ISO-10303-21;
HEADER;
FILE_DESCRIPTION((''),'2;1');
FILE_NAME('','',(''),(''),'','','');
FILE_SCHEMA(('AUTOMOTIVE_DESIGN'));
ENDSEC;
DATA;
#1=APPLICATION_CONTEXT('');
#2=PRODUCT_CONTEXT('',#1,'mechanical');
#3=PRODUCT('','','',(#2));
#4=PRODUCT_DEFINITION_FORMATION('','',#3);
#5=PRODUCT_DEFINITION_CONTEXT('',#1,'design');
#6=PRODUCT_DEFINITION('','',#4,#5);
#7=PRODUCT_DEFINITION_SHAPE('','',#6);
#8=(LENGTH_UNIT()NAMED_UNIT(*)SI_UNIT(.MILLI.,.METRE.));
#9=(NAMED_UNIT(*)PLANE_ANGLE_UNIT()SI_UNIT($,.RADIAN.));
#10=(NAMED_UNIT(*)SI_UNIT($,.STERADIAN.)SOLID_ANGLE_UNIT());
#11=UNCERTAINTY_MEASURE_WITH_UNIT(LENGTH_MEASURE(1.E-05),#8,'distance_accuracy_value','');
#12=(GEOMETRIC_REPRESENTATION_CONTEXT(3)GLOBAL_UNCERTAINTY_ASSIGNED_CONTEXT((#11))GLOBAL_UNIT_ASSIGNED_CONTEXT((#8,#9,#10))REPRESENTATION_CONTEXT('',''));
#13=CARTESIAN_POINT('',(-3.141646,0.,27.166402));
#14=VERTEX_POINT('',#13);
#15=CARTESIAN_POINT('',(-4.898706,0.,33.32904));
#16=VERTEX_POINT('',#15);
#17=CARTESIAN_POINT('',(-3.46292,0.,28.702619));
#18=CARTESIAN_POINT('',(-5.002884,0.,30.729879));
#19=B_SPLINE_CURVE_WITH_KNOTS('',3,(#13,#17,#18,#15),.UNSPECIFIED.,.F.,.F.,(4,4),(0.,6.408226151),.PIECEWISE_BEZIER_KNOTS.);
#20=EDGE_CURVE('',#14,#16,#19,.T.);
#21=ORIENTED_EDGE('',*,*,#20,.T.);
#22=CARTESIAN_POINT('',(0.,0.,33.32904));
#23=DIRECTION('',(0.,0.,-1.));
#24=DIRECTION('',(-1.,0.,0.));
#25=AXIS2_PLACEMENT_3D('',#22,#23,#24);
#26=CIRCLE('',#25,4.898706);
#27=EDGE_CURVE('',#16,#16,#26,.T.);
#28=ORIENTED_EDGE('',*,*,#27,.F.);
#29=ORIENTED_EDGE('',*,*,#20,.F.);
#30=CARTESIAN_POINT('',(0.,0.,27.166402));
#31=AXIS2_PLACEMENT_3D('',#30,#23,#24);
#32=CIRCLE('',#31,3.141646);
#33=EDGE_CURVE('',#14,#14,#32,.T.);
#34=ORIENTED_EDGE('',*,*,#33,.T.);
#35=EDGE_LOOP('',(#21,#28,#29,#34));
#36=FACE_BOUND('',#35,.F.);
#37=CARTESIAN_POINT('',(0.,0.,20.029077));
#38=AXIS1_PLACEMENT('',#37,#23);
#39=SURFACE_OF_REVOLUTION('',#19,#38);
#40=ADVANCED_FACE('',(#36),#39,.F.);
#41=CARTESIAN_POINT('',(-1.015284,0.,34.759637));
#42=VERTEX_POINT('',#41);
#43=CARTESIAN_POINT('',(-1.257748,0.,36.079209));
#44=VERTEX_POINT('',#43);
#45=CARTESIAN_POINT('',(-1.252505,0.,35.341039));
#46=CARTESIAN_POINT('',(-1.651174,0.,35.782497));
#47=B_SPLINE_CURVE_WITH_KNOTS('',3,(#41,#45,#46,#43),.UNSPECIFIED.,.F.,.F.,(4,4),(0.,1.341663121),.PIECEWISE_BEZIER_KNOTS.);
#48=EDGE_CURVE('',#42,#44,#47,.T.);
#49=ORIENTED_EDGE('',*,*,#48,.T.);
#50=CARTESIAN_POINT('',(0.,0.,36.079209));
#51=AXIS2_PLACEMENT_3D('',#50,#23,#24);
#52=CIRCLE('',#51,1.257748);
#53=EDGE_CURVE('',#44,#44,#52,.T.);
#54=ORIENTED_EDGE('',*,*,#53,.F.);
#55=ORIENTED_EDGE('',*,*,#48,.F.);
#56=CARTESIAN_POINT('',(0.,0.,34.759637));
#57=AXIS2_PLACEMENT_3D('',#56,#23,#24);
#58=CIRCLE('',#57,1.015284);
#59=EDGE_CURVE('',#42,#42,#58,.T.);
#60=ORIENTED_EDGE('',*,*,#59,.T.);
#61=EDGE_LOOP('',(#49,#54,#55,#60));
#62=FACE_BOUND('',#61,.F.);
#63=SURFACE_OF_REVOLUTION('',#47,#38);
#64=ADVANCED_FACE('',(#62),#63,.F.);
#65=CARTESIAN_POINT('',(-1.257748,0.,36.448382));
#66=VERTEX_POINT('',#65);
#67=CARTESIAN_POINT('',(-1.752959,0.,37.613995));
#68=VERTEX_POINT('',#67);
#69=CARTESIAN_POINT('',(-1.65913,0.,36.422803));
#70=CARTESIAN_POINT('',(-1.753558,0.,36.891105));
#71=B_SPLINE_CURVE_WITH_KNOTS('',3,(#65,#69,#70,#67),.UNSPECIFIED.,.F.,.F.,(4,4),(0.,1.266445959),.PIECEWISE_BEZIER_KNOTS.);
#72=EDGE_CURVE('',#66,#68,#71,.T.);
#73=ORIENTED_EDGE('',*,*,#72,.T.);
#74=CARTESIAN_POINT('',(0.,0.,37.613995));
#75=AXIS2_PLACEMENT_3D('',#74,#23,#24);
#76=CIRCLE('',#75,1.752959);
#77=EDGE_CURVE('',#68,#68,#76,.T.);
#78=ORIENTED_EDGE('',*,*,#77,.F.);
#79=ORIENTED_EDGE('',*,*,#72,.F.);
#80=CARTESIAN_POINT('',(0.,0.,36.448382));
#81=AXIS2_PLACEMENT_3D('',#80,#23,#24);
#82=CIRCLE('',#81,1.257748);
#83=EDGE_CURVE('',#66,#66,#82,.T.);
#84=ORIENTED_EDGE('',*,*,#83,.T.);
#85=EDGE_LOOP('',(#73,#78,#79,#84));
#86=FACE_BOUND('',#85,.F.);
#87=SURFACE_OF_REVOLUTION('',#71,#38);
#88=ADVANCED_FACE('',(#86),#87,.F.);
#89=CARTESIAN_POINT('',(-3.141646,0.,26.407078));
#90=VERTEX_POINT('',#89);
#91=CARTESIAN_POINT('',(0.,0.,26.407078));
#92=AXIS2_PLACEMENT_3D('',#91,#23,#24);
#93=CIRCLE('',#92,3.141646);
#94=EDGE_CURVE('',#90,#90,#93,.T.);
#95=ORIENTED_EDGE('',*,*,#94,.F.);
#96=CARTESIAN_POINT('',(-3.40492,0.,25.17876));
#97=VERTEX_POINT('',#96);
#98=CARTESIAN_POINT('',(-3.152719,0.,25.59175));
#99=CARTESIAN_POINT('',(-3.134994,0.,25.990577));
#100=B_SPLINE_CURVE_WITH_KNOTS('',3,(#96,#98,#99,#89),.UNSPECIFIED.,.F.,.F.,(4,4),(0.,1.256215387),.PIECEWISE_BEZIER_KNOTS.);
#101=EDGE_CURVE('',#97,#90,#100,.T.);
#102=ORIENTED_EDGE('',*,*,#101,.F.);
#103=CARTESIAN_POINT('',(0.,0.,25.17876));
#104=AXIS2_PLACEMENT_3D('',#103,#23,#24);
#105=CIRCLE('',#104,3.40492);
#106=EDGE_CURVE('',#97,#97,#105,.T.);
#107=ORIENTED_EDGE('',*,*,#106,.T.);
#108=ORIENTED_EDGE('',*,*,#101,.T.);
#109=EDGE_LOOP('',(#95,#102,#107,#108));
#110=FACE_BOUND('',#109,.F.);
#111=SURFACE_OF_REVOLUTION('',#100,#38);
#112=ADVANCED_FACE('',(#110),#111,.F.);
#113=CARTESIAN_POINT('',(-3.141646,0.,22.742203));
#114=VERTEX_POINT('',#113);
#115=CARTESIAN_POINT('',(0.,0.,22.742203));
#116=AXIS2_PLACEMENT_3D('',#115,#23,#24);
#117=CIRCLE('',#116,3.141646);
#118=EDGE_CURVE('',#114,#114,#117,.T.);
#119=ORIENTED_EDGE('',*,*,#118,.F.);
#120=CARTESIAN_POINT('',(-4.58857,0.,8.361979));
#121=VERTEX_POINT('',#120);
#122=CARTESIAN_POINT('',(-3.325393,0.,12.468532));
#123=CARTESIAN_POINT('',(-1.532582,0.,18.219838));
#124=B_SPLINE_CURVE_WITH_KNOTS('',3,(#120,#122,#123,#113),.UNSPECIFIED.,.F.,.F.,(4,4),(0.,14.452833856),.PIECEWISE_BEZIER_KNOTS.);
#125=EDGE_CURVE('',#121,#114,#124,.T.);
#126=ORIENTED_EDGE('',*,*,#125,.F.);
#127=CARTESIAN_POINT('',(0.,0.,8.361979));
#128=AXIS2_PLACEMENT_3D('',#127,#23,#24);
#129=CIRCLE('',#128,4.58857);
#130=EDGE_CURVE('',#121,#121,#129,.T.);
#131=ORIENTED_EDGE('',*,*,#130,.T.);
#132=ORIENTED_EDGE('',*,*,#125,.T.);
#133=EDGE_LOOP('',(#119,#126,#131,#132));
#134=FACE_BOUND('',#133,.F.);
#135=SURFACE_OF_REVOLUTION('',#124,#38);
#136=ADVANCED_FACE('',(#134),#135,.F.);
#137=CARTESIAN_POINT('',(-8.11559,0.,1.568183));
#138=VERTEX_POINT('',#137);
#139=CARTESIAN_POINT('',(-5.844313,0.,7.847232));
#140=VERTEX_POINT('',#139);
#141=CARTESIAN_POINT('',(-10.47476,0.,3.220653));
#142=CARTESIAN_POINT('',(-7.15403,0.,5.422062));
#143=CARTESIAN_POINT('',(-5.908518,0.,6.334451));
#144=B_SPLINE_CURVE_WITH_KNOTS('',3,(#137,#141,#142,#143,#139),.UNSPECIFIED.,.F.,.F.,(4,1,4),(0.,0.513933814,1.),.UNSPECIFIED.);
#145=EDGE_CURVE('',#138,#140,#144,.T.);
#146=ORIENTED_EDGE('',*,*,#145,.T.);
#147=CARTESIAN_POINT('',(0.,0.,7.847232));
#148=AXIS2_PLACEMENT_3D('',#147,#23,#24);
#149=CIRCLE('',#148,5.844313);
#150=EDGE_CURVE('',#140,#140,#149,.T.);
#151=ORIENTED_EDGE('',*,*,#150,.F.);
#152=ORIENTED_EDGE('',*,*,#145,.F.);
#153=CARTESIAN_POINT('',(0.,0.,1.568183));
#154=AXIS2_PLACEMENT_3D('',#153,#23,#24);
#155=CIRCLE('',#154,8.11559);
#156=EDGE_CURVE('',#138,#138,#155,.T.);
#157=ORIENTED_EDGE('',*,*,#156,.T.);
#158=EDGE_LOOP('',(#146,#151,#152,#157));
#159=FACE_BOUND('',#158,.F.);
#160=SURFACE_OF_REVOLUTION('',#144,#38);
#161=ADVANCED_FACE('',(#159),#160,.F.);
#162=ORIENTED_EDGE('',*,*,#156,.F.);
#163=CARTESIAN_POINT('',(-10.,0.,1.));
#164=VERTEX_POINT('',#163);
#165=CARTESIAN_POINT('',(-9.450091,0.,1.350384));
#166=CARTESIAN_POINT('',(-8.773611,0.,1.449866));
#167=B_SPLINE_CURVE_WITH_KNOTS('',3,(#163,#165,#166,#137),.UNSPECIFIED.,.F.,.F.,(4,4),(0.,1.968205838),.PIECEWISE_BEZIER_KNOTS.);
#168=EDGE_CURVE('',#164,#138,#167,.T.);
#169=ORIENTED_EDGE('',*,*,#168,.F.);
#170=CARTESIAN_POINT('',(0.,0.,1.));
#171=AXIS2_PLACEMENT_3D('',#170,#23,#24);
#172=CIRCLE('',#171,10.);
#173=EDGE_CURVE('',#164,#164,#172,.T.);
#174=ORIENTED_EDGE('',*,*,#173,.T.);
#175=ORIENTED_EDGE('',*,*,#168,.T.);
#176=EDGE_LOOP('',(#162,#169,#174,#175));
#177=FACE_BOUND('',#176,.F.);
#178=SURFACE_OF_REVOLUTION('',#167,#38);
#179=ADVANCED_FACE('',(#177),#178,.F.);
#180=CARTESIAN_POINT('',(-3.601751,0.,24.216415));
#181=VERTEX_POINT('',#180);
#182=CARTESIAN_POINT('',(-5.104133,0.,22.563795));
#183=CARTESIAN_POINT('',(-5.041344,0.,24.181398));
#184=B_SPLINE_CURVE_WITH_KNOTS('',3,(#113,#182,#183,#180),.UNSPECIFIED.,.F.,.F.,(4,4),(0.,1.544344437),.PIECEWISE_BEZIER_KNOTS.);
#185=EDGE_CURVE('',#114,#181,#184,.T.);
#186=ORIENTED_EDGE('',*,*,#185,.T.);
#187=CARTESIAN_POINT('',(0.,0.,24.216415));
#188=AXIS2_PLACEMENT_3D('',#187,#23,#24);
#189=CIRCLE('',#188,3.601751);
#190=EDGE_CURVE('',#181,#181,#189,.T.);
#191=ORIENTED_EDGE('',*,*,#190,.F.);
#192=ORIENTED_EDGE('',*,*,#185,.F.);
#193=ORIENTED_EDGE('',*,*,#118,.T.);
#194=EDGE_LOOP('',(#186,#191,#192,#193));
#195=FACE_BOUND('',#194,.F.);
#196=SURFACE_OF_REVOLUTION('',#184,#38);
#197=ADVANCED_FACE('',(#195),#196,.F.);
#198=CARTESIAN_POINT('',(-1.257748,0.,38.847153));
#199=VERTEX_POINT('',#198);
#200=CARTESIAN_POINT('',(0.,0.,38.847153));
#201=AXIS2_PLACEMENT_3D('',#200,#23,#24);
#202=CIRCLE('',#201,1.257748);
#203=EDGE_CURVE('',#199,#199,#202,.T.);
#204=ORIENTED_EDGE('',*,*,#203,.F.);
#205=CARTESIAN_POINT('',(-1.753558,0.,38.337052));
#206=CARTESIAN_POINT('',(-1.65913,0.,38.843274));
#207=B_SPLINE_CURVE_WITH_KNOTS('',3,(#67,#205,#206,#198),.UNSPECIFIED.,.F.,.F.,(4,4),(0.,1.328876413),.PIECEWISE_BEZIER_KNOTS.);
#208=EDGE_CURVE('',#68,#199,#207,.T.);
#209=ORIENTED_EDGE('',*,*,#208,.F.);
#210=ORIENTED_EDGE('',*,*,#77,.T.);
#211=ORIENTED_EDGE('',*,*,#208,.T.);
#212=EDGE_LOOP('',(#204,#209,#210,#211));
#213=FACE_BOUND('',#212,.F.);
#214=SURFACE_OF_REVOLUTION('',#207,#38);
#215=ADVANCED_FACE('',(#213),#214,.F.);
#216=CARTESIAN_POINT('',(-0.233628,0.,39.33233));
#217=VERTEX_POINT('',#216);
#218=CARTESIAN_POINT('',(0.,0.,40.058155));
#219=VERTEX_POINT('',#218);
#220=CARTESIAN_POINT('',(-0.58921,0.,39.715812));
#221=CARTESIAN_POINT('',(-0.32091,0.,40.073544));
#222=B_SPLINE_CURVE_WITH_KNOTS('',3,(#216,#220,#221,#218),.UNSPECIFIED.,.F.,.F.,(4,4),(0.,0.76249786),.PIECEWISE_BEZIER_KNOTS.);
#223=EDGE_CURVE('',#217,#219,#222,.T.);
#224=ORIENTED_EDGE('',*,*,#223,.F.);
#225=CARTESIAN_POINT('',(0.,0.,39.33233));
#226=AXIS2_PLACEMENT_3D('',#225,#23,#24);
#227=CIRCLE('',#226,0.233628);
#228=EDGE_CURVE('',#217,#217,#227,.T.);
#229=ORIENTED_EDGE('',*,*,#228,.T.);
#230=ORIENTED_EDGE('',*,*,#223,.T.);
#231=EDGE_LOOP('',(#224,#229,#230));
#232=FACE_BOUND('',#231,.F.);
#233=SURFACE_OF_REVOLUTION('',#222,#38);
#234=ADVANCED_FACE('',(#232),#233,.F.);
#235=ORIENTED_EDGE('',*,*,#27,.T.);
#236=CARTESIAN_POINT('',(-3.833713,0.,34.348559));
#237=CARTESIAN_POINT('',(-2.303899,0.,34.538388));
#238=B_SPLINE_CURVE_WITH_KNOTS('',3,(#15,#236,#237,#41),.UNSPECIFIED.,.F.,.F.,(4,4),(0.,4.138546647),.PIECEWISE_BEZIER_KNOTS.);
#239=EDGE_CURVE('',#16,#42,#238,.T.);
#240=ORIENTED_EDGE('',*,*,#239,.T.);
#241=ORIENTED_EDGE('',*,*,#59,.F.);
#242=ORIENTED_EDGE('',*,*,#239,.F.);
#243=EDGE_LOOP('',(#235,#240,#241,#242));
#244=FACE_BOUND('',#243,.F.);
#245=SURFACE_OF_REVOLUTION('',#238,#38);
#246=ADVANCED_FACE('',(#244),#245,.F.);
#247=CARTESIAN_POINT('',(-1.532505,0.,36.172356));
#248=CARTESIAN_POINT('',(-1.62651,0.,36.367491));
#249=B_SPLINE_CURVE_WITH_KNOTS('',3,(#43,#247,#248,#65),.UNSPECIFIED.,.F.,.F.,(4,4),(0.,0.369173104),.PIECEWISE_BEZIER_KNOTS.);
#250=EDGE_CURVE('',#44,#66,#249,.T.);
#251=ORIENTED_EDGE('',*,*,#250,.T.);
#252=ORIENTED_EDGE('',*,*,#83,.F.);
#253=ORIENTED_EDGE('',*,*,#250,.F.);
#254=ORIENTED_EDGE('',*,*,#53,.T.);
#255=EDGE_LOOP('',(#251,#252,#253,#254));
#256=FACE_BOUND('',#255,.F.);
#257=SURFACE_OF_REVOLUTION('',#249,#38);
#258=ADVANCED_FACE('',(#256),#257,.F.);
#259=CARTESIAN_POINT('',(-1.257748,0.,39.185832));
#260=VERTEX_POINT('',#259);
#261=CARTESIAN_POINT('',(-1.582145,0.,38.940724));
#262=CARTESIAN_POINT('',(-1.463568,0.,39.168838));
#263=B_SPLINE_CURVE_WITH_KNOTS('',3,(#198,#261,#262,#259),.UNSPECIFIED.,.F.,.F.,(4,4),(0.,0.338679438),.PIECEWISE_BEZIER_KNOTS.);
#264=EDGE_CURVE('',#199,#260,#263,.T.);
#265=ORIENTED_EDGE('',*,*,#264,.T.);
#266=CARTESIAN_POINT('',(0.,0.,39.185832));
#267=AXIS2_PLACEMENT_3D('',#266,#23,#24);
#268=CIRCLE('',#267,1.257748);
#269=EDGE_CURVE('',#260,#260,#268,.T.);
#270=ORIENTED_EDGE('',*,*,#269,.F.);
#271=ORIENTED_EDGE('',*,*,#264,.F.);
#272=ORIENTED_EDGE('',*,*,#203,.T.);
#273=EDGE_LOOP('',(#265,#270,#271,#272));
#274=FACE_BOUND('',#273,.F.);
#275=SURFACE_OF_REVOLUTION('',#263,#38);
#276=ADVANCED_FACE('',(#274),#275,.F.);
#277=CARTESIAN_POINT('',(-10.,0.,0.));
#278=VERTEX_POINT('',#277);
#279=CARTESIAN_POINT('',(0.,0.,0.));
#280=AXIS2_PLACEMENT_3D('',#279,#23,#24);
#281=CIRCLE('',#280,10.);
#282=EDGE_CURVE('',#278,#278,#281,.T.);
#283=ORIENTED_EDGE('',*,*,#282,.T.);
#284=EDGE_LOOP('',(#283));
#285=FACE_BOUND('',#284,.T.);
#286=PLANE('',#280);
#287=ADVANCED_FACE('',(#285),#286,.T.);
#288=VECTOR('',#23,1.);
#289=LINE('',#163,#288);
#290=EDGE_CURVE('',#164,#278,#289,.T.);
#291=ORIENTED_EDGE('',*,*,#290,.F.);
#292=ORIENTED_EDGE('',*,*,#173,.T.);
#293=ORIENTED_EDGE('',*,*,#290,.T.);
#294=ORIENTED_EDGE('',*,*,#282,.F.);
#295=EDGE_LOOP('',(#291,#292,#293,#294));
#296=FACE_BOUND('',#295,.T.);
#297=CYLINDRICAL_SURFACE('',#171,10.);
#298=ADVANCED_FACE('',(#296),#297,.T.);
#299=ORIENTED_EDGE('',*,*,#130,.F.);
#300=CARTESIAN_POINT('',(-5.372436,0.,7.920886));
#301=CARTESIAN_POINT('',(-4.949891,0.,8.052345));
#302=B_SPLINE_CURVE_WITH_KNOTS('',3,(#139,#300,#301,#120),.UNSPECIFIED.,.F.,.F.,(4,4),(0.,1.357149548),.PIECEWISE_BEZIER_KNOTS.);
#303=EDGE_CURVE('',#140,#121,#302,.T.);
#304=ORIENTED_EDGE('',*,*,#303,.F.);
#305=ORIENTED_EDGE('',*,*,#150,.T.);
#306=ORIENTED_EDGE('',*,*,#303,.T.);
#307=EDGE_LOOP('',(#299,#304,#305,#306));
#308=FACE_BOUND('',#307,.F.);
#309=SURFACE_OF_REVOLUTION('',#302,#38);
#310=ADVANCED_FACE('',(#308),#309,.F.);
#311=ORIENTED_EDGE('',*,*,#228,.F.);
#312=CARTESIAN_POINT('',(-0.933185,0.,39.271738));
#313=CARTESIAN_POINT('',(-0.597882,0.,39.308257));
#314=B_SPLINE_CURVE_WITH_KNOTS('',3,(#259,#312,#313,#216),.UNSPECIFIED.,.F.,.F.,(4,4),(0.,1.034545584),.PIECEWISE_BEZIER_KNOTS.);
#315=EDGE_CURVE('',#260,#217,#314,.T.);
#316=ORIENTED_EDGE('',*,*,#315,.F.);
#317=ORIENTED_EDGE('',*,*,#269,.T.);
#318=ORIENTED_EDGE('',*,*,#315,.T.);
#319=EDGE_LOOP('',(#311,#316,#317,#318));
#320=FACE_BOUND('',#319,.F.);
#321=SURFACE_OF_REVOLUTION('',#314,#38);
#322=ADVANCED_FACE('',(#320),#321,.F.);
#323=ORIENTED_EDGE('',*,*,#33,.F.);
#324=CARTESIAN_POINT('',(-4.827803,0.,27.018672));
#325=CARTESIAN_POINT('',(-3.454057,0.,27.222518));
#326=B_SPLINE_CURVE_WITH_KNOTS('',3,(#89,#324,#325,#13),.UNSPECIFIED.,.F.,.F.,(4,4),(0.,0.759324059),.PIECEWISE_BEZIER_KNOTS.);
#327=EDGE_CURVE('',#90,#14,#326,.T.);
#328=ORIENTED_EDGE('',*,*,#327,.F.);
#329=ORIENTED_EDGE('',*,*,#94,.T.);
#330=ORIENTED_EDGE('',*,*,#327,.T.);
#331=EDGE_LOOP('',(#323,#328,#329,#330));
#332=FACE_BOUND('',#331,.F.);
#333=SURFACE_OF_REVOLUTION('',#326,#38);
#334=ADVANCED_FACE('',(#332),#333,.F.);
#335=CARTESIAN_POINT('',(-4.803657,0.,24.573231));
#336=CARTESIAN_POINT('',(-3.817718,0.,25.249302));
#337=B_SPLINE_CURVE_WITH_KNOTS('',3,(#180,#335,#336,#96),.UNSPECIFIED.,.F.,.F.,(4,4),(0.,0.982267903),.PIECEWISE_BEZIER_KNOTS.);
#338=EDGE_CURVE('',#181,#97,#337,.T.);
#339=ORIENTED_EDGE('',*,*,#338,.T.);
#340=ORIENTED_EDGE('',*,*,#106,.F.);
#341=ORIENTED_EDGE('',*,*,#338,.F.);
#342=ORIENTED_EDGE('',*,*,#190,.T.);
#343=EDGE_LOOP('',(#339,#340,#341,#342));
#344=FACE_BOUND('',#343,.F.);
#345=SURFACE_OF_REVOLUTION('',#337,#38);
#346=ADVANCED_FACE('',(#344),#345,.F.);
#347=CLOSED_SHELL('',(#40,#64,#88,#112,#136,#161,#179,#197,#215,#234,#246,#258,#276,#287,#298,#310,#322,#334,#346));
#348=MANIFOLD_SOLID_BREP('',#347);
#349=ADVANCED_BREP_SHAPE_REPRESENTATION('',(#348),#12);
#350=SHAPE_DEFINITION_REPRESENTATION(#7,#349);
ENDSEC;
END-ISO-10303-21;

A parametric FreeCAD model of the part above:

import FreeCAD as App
import Part
import Sketcher

V = App.Vector

doc = App.newDocument("Part")
body = doc.addObject("PartDesign::Body", "Body")

sketch1 = body.newObject("Sketcher::SketchObject", "Sketch")
sketch1.AttachmentSupport = (doc.getObject("XZ_Plane"), [""])
sketch1.MapMode = "FlatFace"
sketch1.addGeometry([
    Part.LineSegment(V(-10, 0, 0), V(0, 0, 0)),
    Part.LineSegment(V(0, 0, 0), V(0, 40.058155, 0)),
    Part.BSplineCurve([V(-0.233628, 39.33233, 0), V(-0.58921, 39.715812, 0), V(-0.32091, 40.073544, 0), V(0, 40.058155, 0)], [4, 4], [0, 0.76249786], False, 3, [1, 1, 1, 1], False),
    Part.BSplineCurve([V(-1.257748, 39.185832, 0), V(-0.933185, 39.271738, 0), V(-0.597882, 39.308257, 0), V(-0.233628, 39.33233, 0)], [4, 4], [0, 1.034545584], False, 3, [1, 1, 1, 1], False),
    Part.BSplineCurve([V(-1.257748, 38.847153, 0), V(-1.582145, 38.940724, 0), V(-1.463568, 39.168838, 0), V(-1.257748, 39.185832, 0)], [4, 4], [0, 0.338679438], False, 3, [1, 1, 1, 1], False),
    Part.BSplineCurve([V(-1.752959, 37.613995, 0), V(-1.753558, 38.337052, 0), V(-1.65913, 38.843274, 0), V(-1.257748, 38.847153, 0)], [4, 4], [0, 1.328876413], False, 3, [1, 1, 1, 1], False),
    Part.BSplineCurve([V(-1.257748, 36.448382, 0), V(-1.65913, 36.422803, 0), V(-1.753558, 36.891105, 0), V(-1.752959, 37.613995, 0)], [4, 4], [0, 1.266445959], False, 3, [1, 1, 1, 1], False),
    Part.BSplineCurve([V(-1.257748, 36.079209, 0), V(-1.532505, 36.172356, 0), V(-1.62651, 36.367491, 0), V(-1.257748, 36.448382, 0)], [4, 4], [0, 0.369173104], False, 3, [1, 1, 1, 1], False),
    Part.BSplineCurve([V(-1.015284, 34.759637, 0), V(-1.252505, 35.341039, 0), V(-1.651174, 35.782497, 0), V(-1.257748, 36.079209, 0)], [4, 4], [0, 1.341663121], False, 3, [1, 1, 1, 1], False),
    Part.BSplineCurve([V(-4.898706, 33.32904, 0), V(-3.833713, 34.348559, 0), V(-2.303899, 34.538388, 0), V(-1.015284, 34.759637, 0)], [4, 4], [0, 4.138546647], False, 3, [1, 1, 1, 1], False),
    Part.BSplineCurve([V(-3.141646, 27.166402, 0), V(-3.46292, 28.702619, 0), V(-5.002884, 30.729879, 0), V(-4.898706, 33.32904, 0)], [4, 4], [0, 6.408226151], False, 3, [1, 1, 1, 1], False),
    Part.BSplineCurve([V(-3.141646, 26.407078, 0), V(-4.827803, 27.018672, 0), V(-3.454057, 27.222518, 0), V(-3.141646, 27.166402, 0)], [4, 4], [0, 0.759324059], False, 3, [1, 1, 1, 1], False),
    Part.BSplineCurve([V(-3.40492, 25.17876, 0), V(-3.152719, 25.59175, 0), V(-3.134994, 25.990577, 0), V(-3.141646, 26.407078, 0)], [4, 4], [0, 1.256215387], False, 3, [1, 1, 1, 1], False),
    Part.BSplineCurve([V(-3.601751, 24.216415, 0), V(-4.803657, 24.573231, 0), V(-3.817718, 25.249302, 0), V(-3.40492, 25.17876, 0)], [4, 4], [0, 0.982267903], False, 3, [1, 1, 1, 1], False),
    Part.BSplineCurve([V(-3.141646, 22.742203, 0), V(-5.104133, 22.563795, 0), V(-5.041344, 24.181398, 0), V(-3.601751, 24.216415, 0)], [4, 4], [0, 1.544344437], False, 3, [1, 1, 1, 1], False),
    Part.BSplineCurve([V(-4.58857, 8.361979, 0), V(-3.325393, 12.468532, 0), V(-1.532582, 18.219838, 0), V(-3.141646, 22.742203, 0)], [4, 4], [0, 14.452833856], False, 3, [1, 1, 1, 1], False),
    Part.BSplineCurve([V(-5.844313, 7.847232, 0), V(-5.372436, 7.920886, 0), V(-4.949891, 8.052345, 0), V(-4.58857, 8.361979, 0)], [4, 4], [0, 1.357149548], False, 3, [1, 1, 1, 1], False),
    Part.BSplineCurve([V(-8.11559, 1.568183, 0), V(-10.47476, 3.220653, 0), V(-7.15403, 5.422062, 0), V(-5.908518, 6.334451, 0), V(-5.844313, 7.847232, 0)], [4, 1, 4], [0, 0.513933814, 1], False, 3, [1, 1, 1, 1, 1], False),
    Part.BSplineCurve([V(-10, 1, 0), V(-9.450091, 1.350384, 0), V(-8.773611, 1.449866, 0), V(-8.11559, 1.568183, 0)], [4, 4], [0, 1.968205838], False, 3, [1, 1, 1, 1], False),
    Part.LineSegment(V(-10, 1, 0), V(-10, 0, 0)),
], False)
sketch1.addConstraint([
    Sketcher.Constraint("Block", 2),
    Sketcher.Constraint("Block", 3),
    Sketcher.Constraint("Block", 4),
    Sketcher.Constraint("Block", 5),
    Sketcher.Constraint("Block", 6),
    Sketcher.Constraint("Block", 7),
    Sketcher.Constraint("Block", 8),
    Sketcher.Constraint("Block", 9),
    Sketcher.Constraint("Block", 10),
    Sketcher.Constraint("Block", 11),
    Sketcher.Constraint("Block", 12),
    Sketcher.Constraint("Block", 13),
    Sketcher.Constraint("Block", 14),
    Sketcher.Constraint("Block", 15),
    Sketcher.Constraint("Block", 16),
    Sketcher.Constraint("Block", 17),
    Sketcher.Constraint("Block", 18),
    Sketcher.Constraint("Coincident", 0, 2, 1, 1),
    Sketcher.Constraint("Coincident", 1, 2, 2, 2),
    Sketcher.Constraint("Coincident", 18, 1, 19, 1),
    Sketcher.Constraint("Coincident", 19, 2, 0, 1),
    Sketcher.Constraint("Horizontal", 0),
    Sketcher.Constraint("Vertical", 1),
    Sketcher.Constraint("Vertical", 19),
    Sketcher.Constraint("PointOnObject", 19, 2, -1),
])
revolution = body.newObject("PartDesign::Revolution", "Revolution")
revolution.Profile = sketch1
revolution.ReferenceAxis = (sketch1, ["V_Axis"])
revolution.Angle = 360

doc.recompute()
